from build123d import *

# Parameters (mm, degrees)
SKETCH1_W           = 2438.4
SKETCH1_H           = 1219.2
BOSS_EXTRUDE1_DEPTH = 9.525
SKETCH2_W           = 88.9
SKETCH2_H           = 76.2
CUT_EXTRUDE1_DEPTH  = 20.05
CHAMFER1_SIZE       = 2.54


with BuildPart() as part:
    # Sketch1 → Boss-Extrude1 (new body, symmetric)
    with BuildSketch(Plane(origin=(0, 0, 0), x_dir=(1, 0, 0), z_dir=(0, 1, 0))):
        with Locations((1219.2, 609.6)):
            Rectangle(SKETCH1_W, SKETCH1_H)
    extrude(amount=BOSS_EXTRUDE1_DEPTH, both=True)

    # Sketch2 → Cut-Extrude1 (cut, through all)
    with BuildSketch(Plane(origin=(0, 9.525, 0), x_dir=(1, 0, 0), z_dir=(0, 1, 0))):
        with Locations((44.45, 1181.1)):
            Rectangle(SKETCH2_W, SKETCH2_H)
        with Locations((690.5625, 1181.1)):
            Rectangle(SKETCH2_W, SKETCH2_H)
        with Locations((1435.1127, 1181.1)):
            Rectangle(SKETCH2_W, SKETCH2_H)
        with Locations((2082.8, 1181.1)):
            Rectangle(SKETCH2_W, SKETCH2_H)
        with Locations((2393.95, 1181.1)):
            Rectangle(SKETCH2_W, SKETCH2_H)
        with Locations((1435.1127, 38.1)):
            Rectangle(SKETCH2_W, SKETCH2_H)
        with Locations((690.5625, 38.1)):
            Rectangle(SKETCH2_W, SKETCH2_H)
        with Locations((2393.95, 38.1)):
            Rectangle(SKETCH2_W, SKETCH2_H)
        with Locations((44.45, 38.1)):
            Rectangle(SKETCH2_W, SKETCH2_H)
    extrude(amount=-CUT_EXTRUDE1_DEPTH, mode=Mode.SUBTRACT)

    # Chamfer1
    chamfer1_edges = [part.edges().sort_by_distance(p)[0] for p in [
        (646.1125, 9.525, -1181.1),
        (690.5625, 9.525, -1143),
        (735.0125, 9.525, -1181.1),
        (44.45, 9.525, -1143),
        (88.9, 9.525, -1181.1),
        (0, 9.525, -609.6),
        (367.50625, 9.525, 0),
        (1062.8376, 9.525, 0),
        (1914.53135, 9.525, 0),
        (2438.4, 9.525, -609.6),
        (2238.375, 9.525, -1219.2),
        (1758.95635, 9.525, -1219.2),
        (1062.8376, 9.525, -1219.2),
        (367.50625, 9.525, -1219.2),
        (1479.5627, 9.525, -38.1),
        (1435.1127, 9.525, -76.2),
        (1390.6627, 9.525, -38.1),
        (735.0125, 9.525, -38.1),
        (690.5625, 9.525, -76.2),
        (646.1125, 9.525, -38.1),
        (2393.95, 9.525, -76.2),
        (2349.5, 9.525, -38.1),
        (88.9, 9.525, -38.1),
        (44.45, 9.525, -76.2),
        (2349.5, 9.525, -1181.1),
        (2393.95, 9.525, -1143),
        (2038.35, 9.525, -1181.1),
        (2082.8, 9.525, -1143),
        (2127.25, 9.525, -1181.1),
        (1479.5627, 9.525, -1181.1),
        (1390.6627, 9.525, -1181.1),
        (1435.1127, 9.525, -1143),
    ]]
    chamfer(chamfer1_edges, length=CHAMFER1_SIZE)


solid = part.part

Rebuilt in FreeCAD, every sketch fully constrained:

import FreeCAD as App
import Part
import Sketcher
Q = App.Units.Quantity


def edges_at(feature, points):
    """Names of the edges that pass closest to the given points."""
    edges = feature.Shape.Edges
    near = lambda p: min(range(len(edges)), key=lambda i: edges[i].distToShape(Part.Vertex(*p))[0])
    return sorted({f"Edge{near(p) + 1}" for p in points})


def add_polygon(sketch, points):
    """Adds a closed chain of lines whose ends are joined by coincident constraints."""
    first, n = sketch.GeometryCount, len(points)
    for a, b in zip(points, points[1:] + points[:1]):
        sketch.addGeometry(Part.LineSegment(App.Vector(*a, 0), App.Vector(*b, 0)), False)
    for i in range(n):
        sketch.addConstraint(Sketcher.Constraint("Coincident", first + i, 2, first + (i + 1) % n, 1))

doc = App.newDocument("Part")
body = doc.addObject("PartDesign::Body", "Body")

# Sketch on XZ plane
sketch1 = body.newObject("Sketcher::SketchObject", "Sketch")
sketch1.AttachmentSupport = (doc.getObject("XZ_Plane"), [""])
sketch1.MapMode = "FlatFace"
add_polygon(sketch1, [(0, -1219), (0, 0), (2438, 0), (2438, -1219)])  # lines 0-3
sketch1.addConstraint(Sketcher.Constraint("Vertical", 0))
sketch1.addConstraint(Sketcher.Constraint("Horizontal", 1))
sketch1.addConstraint(Sketcher.Constraint("Vertical", 2))
sketch1.addConstraint(Sketcher.Constraint("Horizontal", 3))
sketch1.addConstraint(Sketcher.Constraint("Coincident", 0, 2, -1, 1))
sketch1.addConstraint(Sketcher.Constraint("DistanceX", 1, 1, 1, 2, Q("96 in")))
sketch1.addConstraint(Sketcher.Constraint("DistanceY", 0, 1, 0, 2, Q("48 in")))
pad1 = body.newObject("PartDesign::Pad", "Pad")
pad1.Profile = sketch1
pad1.Length = Q("0.75 in")
pad1.Midplane = True

# Sketch on XZ plane
sketch2 = body.newObject("Sketcher::SketchObject", "Sketch001")
sketch2.AttachmentSupport = (doc.getObject("XZ_Plane"), [""])
sketch2.MapMode = "FlatFace"
sketch2.AttachmentOffset = App.Placement(App.Vector(0, 0, -0.375 * 25.4), App.Rotation())
add_polygon(sketch2, [(0, -1219), (0, -1143), (89, -1143), (89, -1219)])  # lines 0-3
add_polygon(sketch2, [(646, -1219), (646, -1143), (735, -1143), (735, -1219)])  # lines 4-7
add_polygon(sketch2, [(1391, -1219), (1391, -1143), (1480, -1143), (1480, -1219)])  # lines 8-11
add_polygon(sketch2, [(2038, -1219), (2038, -1143), (2127, -1143), (2127, -1219)])  # lines 12-15
add_polygon(sketch2, [(2350, -1219), (2350, -1143), (2438, -1143), (2438, -1219)])  # lines 16-19
add_polygon(sketch2, [(1391, -76), (1391, 0), (1480, 0), (1480, -76)])  # lines 20-23
add_polygon(sketch2, [(646, -76), (646, 0), (735, 0), (735, -76)])  # lines 24-27
add_polygon(sketch2, [(2350, -76), (2350, 0), (2438, 0), (2438, -76)])  # lines 28-31
add_polygon(sketch2, [(0, -76), (0, 0), (89, 0), (89, -76)])  # lines 32-35
sketch2.addConstraint(Sketcher.Constraint("Vertical", 0))
sketch2.addConstraint(Sketcher.Constraint("Horizontal", 1))
sketch2.addConstraint(Sketcher.Constraint("Vertical", 2))
sketch2.addConstraint(Sketcher.Constraint("Horizontal", 3))
sketch2.addConstraint(Sketcher.Constraint("Vertical", 4))
sketch2.addConstraint(Sketcher.Constraint("Horizontal", 5))
sketch2.addConstraint(Sketcher.Constraint("Vertical", 6))
sketch2.addConstraint(Sketcher.Constraint("Horizontal", 7))
sketch2.addConstraint(Sketcher.Constraint("Vertical", 8))
sketch2.addConstraint(Sketcher.Constraint("Horizontal", 9))
sketch2.addConstraint(Sketcher.Constraint("Vertical", 10))
sketch2.addConstraint(Sketcher.Constraint("Horizontal", 11))
sketch2.addConstraint(Sketcher.Constraint("Vertical", 12))
sketch2.addConstraint(Sketcher.Constraint("Horizontal", 13))
sketch2.addConstraint(Sketcher.Constraint("Vertical", 14))
sketch2.addConstraint(Sketcher.Constraint("Horizontal", 15))
sketch2.addConstraint(Sketcher.Constraint("Vertical", 16))
sketch2.addConstraint(Sketcher.Constraint("Horizontal", 17))
sketch2.addConstraint(Sketcher.Constraint("Vertical", 18))
sketch2.addConstraint(Sketcher.Constraint("Horizontal", 19))
sketch2.addConstraint(Sketcher.Constraint("Vertical", 20))
sketch2.addConstraint(Sketcher.Constraint("Horizontal", 21))
sketch2.addConstraint(Sketcher.Constraint("Vertical", 22))
sketch2.addConstraint(Sketcher.Constraint("Horizontal", 23))
sketch2.addConstraint(Sketcher.Constraint("Vertical", 24))
sketch2.addConstraint(Sketcher.Constraint("Horizontal", 25))
sketch2.addConstraint(Sketcher.Constraint("Vertical", 26))
sketch2.addConstraint(Sketcher.Constraint("Horizontal", 27))
sketch2.addConstraint(Sketcher.Constraint("Vertical", 28))
sketch2.addConstraint(Sketcher.Constraint("Horizontal", 29))
sketch2.addConstraint(Sketcher.Constraint("Vertical", 30))
sketch2.addConstraint(Sketcher.Constraint("Horizontal", 31))
sketch2.addConstraint(Sketcher.Constraint("Vertical", 32))
sketch2.addConstraint(Sketcher.Constraint("Horizontal", 33))
sketch2.addConstraint(Sketcher.Constraint("Vertical", 34))
sketch2.addConstraint(Sketcher.Constraint("Horizontal", 35))
sketch2.addConstraint(Sketcher.Constraint("Coincident", 32, 2, -1, 1))
sketch2.addConstraint(Sketcher.Constraint("PointOnObject", 0, 2, -2))
sketch2.addConstraint(Sketcher.Constraint("PointOnObject", 20, 2, -1))
sketch2.addConstraint(Sketcher.Constraint("PointOnObject", 24, 2, -1))
sketch2.addConstraint(Sketcher.Constraint("PointOnObject", 28, 2, -1))
sketch2.addConstraint(Sketcher.Constraint("Horizontal", 1, 2, 4, 2))
sketch2.addConstraint(Sketcher.Constraint("Horizontal", 3, 2, 6, 2))
sketch2.addConstraint(Sketcher.Constraint("Horizontal", 5, 2, 8, 2))
sketch2.addConstraint(Sketcher.Constraint("Horizontal", 7, 2, 10, 2))
sketch2.addConstraint(Sketcher.Constraint("Horizontal", 9, 2, 12, 2))
sketch2.addConstraint(Sketcher.Constraint("Horizontal", 11, 2, 14, 2))
sketch2.addConstraint(Sketcher.Constraint("Horizontal", 13, 2, 16, 2))
sketch2.addConstraint(Sketcher.Constraint("Horizontal", 15, 2, 18, 2))
sketch2.addConstraint(Sketcher.Constraint("Horizontal", 23, 2, 26, 2))
sketch2.addConstraint(Sketcher.Constraint("Horizontal", 27, 2, 30, 2))
sketch2.addConstraint(Sketcher.Constraint("Horizontal", 31, 2, 34, 2))
sketch2.addConstraint(Sketcher.Constraint("Vertical", 11, 2, 20, 2))
sketch2.addConstraint(Sketcher.Constraint("Vertical", 10, 2, 21, 2))
sketch2.addConstraint(Sketcher.Constraint("Vertical", 7, 2, 24, 2))
sketch2.addConstraint(Sketcher.Constraint("Vertical", 6, 2, 25, 2))
sketch2.addConstraint(Sketcher.Constraint("Vertical", 19, 2, 28, 2))
sketch2.addConstraint(Sketcher.Constraint("Vertical", 18, 2, 29, 2))
sketch2.addConstraint(Sketcher.Constraint("Vertical", 2, 2, 33, 2))
sketch2.addConstraint(Sketcher.Constraint("Equal", 3, 5))
sketch2.addConstraint(Sketcher.Constraint("Equal", 7, 9))
sketch2.addConstraint(Sketcher.Constraint("Equal", 11, 13))
sketch2.addConstraint(Sketcher.Constraint("Equal", 15, 17))
sketch2.addConstraint(Sketcher.Constraint("Equal", 18, 20))
sketch2.addConstraint(Sketcher.Constraint("DistanceY", 0, 1, 0, 2, Q("3 in")))
sketch2.addConstraint(Sketcher.Constraint("DistanceX", 1, 1, 1, 2, Q("3.5 in")))
sketch2.addConstraint(Sketcher.Constraint("DistanceY", 0, 2, -1, 1, Q("45 in")))
sketch2.addConstraint(Sketcher.Constraint("DistanceX", -1, 1, 17, 2, Q("96 in")))
sketch2.addConstraint(Sketcher.Constraint("DistanceX", -1, 1, 12, 2, Q("80.25 in")))
sketch2.addConstraint(Sketcher.Constraint("DistanceX", -1, 1, 4, 2, Q("25.4375 in")))
sketch2.addConstraint(Sketcher.Constraint("DistanceX", 5, 2, 8, 2, Q("25.813 in")))
pocket1 = body.newObject("PartDesign::Pocket", "Pocket")
pocket1.Profile = sketch2
pocket1.Type = "ThroughAll"
pocket1.Reversed = True
doc.recompute()

chamfer = body.newObject("PartDesign::Chamfer", "Chamfer")
chamfer.Base = (pocket1, edges_at(pocket1, [
    (646.112, 9.525, -1181.1),
    (690.562, 9.525, -1143),
    (735.013, 9.525, -1181.1),
    (44.45, 9.525, -1143),
    (88.9, 9.525, -1181.1),
    (0, 9.525, -609.6),
    (367.506, 9.525, 0),
    (1062.838, 9.525, 0),
    (1914.531, 9.525, 0),
    (2438.4, 9.525, -609.6),
    (2238.375, 9.525, -1219.2),
    (1758.956, 9.525, -1219.2),
    (1062.838, 9.525, -1219.2),
    (367.506, 9.525, -1219.2),
    (1479.563, 9.525, -38.1),
    (1435.113, 9.525, -76.2),
    (1390.663, 9.525, -38.1),
    (735.013, 9.525, -38.1),
    (690.562, 9.525, -76.2),
    (646.112, 9.525, -38.1),
    (2393.95, 9.525, -76.2),
    (2349.5, 9.525, -38.1),
    (88.9, 9.525, -38.1),
    (44.45, 9.525, -76.2),
    (2349.5, 9.525, -1181.1),
    (2393.95, 9.525, -1143),
    (2038.35, 9.525, -1181.1),
    (2082.8, 9.525, -1143),
    (2127.25, 9.525, -1181.1),
    (1479.563, 9.525, -1181.1),
    (1390.663, 9.525, -1181.1),
    (1435.113, 9.525, -1143),
]))
chamfer.Size = Q("0.1 in")

doc.recompute()
